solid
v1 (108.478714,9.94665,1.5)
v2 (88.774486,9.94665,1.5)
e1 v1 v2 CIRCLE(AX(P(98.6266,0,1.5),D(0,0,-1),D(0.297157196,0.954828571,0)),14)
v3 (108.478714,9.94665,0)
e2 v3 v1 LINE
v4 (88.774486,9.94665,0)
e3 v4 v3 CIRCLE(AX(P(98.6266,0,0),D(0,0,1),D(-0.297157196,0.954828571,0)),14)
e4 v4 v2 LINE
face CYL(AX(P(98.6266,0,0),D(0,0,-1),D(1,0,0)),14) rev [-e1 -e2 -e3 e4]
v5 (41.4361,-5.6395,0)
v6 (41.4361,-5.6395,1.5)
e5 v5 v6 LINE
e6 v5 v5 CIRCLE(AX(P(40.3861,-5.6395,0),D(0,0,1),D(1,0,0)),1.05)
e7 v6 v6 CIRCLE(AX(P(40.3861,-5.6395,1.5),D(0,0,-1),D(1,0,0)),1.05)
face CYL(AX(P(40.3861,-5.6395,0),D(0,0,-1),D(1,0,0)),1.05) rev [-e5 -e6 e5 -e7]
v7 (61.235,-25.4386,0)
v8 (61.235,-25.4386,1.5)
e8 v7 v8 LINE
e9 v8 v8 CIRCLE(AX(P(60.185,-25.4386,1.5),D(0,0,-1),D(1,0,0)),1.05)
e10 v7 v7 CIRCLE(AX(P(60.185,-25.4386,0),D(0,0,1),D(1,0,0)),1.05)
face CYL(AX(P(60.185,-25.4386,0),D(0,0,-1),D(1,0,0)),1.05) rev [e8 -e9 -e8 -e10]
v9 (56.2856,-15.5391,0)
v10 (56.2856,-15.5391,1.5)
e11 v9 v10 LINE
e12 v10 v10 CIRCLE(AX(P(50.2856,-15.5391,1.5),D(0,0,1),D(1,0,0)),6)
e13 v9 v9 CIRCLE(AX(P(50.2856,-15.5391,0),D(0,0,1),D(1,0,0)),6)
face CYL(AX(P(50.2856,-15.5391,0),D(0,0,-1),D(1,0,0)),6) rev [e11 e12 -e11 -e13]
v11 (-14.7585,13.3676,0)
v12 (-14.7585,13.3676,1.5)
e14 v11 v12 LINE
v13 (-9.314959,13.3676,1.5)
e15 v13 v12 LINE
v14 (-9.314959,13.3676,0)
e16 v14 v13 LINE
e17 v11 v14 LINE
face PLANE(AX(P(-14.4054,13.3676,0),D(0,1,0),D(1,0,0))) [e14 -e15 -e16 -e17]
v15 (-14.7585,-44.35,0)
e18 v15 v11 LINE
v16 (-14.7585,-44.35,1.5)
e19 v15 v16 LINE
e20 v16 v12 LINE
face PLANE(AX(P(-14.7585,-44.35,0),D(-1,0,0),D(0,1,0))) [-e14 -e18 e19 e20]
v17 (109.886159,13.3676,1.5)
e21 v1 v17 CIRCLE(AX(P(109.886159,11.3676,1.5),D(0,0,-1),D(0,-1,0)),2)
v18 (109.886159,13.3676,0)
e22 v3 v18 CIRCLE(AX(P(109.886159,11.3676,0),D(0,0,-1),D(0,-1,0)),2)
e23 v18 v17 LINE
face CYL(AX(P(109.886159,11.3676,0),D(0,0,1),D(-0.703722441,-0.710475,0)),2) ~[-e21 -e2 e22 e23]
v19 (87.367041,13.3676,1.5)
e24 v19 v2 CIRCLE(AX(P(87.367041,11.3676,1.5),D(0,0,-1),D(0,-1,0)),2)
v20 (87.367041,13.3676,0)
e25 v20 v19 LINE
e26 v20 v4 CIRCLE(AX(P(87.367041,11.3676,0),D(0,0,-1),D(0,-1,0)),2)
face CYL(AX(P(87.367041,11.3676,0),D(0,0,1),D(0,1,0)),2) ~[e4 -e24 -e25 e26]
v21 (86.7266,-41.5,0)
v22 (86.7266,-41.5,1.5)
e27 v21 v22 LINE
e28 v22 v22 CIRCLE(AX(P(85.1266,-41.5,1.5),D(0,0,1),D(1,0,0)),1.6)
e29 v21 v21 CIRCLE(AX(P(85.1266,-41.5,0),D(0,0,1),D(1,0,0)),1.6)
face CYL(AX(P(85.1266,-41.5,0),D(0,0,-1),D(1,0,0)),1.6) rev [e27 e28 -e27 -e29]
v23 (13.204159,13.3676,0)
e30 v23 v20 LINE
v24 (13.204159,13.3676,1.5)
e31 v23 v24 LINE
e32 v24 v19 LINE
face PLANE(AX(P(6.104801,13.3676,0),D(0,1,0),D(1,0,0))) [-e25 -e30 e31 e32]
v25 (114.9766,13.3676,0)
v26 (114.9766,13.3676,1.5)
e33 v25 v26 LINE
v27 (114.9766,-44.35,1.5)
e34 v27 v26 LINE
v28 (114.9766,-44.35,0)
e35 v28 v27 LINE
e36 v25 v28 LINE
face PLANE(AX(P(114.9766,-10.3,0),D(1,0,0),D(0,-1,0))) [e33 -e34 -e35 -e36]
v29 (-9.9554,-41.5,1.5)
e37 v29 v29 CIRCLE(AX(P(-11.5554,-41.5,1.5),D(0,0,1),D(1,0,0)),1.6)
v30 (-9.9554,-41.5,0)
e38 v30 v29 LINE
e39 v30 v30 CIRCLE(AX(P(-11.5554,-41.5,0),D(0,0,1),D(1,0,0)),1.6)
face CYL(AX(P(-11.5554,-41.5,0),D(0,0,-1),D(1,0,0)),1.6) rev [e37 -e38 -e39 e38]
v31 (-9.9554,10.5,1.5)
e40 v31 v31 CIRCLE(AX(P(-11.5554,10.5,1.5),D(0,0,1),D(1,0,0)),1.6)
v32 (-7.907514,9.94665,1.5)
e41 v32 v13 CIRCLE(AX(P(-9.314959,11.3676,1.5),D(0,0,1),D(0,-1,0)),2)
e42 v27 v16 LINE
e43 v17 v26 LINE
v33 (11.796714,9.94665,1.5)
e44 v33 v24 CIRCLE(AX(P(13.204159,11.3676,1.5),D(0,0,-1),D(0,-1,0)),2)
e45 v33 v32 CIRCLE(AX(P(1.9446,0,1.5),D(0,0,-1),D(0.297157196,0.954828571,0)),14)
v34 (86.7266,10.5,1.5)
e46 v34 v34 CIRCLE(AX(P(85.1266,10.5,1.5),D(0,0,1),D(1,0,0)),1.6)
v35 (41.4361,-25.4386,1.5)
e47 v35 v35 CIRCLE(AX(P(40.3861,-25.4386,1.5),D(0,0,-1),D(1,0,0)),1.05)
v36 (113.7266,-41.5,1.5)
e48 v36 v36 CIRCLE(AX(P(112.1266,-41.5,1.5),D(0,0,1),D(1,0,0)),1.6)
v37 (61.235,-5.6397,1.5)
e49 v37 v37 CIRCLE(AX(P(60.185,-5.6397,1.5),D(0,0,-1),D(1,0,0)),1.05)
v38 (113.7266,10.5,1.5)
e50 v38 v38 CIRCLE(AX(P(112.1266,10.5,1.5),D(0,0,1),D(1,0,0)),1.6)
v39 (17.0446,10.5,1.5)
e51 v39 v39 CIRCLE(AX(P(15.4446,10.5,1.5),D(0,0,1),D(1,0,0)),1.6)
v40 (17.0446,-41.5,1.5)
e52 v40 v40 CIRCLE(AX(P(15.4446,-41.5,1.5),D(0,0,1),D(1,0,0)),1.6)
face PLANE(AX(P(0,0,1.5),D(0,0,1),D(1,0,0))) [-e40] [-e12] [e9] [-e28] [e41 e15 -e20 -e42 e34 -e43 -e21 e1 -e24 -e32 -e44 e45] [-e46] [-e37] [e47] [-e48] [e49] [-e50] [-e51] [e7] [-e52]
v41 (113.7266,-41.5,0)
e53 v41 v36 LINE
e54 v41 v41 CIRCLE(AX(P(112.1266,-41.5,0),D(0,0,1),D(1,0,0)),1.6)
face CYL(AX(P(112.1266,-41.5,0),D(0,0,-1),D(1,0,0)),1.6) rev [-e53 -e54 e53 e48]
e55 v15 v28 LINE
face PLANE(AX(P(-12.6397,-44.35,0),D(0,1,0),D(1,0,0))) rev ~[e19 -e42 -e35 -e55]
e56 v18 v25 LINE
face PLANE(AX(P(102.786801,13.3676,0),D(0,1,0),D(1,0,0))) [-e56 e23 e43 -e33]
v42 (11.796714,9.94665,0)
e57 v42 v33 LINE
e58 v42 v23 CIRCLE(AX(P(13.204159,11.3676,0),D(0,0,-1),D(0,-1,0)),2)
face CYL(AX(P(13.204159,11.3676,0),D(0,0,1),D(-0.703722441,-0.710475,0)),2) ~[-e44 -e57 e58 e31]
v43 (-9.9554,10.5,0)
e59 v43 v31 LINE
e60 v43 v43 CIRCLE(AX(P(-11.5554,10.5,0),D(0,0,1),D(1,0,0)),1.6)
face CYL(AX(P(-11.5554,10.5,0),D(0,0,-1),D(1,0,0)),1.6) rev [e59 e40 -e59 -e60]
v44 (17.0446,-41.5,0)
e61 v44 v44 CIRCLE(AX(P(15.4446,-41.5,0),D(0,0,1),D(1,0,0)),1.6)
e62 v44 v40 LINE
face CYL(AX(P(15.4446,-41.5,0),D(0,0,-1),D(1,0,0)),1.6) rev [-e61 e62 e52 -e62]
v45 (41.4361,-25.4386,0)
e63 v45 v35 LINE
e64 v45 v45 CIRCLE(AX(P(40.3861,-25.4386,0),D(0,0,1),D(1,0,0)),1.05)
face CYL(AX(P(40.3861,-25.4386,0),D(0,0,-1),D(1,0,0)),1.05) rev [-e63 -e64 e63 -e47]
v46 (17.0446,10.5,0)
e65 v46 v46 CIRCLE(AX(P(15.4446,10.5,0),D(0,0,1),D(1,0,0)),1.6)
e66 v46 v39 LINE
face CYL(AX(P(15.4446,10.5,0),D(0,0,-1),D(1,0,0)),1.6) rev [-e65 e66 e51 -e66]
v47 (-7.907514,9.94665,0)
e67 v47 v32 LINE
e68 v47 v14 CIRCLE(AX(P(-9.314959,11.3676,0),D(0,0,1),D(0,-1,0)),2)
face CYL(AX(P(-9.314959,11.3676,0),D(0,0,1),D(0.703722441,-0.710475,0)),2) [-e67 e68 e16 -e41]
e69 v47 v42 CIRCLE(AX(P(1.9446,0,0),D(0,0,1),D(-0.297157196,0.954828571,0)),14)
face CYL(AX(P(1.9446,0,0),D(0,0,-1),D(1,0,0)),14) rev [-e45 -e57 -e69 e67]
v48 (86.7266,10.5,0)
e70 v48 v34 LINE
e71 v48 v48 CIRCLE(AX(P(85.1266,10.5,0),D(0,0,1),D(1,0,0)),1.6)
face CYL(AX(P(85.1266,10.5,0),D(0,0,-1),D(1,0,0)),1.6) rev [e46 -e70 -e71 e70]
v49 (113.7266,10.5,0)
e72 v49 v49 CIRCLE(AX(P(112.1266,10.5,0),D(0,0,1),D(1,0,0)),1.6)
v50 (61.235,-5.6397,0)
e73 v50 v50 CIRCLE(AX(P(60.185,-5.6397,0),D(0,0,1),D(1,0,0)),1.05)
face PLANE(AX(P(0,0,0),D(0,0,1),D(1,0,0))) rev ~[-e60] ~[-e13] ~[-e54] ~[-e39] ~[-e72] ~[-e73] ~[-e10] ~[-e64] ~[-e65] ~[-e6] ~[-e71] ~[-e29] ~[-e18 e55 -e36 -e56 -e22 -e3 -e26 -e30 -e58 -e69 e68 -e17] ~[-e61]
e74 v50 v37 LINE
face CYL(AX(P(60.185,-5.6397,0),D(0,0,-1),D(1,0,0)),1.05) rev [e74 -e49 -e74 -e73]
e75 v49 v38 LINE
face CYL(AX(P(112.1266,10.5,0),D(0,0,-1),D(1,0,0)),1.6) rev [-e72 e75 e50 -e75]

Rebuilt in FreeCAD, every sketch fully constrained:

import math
import FreeCAD as App
import Part
import Sketcher
from FreeCAD import Vector


def edges_at(feature, points):
    """Names of the edges that pass closest to the given points."""
    edges = feature.Shape.Edges
    near = lambda p: min(range(len(edges)), key=lambda i: edges[i].distToShape(Part.Vertex(*p))[0])
    return sorted({f"Edge{near(p) + 1}" for p in points})

doc = App.newDocument("Part")
body = doc.addObject("PartDesign::Body", "Body")

sketch1 = body.newObject("Sketcher::SketchObject", "Sketch")
sketch1.AttachmentSupport = (doc.getObject("XY_Plane"), [""])
sketch1.MapMode = "FlatFace"
sketch1.addGeometry(Part.LineSegment(Vector(115, -44.4, 0), Vector(115, 13.4, 0)), False)
sketch1.addGeometry(Part.LineSegment(Vector(115, 13.4, 0), Vector(102.8, 13.4, 0)), False)
sketch1.addGeometry(Part.ArcOfCircle(Part.Circle(Vector(98.6, 0, 0), Vector(0, 0, 1), 14), math.radians(107), math.radians(433)), False)
sketch1.addGeometry(Part.LineSegment(Vector(94.5, 13.4, 0), Vector(6.1, 13.4, 0)), False)
sketch1.addGeometry(Part.ArcOfCircle(Part.Circle(Vector(1.9, 0, 0), Vector(0, 0, 1), 14), math.radians(107), math.radians(433)), False)
sketch1.addGeometry(Part.LineSegment(Vector(-2.2, 13.4, 0), Vector(-14.8, 13.4, 0)), False)
sketch1.addGeometry(Part.LineSegment(Vector(-14.8, 13.4, 0), Vector(-14.8, -44.4, 0)), False)
sketch1.addGeometry(Part.LineSegment(Vector(-14.8, -44.4, 0), Vector(115, -44.4, 0)), False)
sketch1.addGeometry(Part.Circle(Vector(60.2, -25.4, 0), Vector(0, 0, 1), 1.1), False)
sketch1.addGeometry(Part.Circle(Vector(60.2, -5.6, 0), Vector(0, 0, 1), 1.1), False)
sketch1.addGeometry(Part.Circle(Vector(40.4, -5.6, 0), Vector(0, 0, 1), 1.1), False)
sketch1.addGeometry(Part.Circle(Vector(40.4, -25.4, 0), Vector(0, 0, 1), 1.1), False)
sketch1.addGeometry(Part.Circle(Vector(-11.6, -41.5, 0), Vector(0, 0, 1), 1.6), False)
sketch1.addGeometry(Part.Circle(Vector(15.4, -41.5, 0), Vector(0, 0, 1), 1.6), False)
sketch1.addGeometry(Part.Circle(Vector(-11.6, 10.5, 0), Vector(0, 0, 1), 1.6), False)
sketch1.addGeometry(Part.Circle(Vector(15.4, 10.5, 0), Vector(0, 0, 1), 1.6), False)
sketch1.addGeometry(Part.Circle(Vector(50.3, -15.5, 0), Vector(0, 0, 1), 6), False)
sketch1.addGeometry(Part.Circle(Vector(85.1, 10.5, 0), Vector(0, 0, 1), 1.6), False)
sketch1.addGeometry(Part.Circle(Vector(112.1, 10.5, 0), Vector(0, 0, 1), 1.6), False)
sketch1.addGeometry(Part.Circle(Vector(85.1, -41.5, 0), Vector(0, 0, 1), 1.6), False)
sketch1.addGeometry(Part.Circle(Vector(112.1, -41.5, 0), Vector(0, 0, 1), 1.6), False)
sketch1.addConstraint(Sketcher.Constraint("Coincident", 0, 2, 1, 1))
sketch1.addConstraint(Sketcher.Constraint("Coincident", 1, 2, 2, 2))
sketch1.addConstraint(Sketcher.Constraint("Coincident", 2, 1, 3, 1))
sketch1.addConstraint(Sketcher.Constraint("Coincident", 3, 2, 4, 2))
sketch1.addConstraint(Sketcher.Constraint("Coincident", 4, 1, 5, 1))
sketch1.addConstraint(Sketcher.Constraint("Coincident", 5, 2, 6, 1))
sketch1.addConstraint(Sketcher.Constraint("Coincident", 6, 2, 7, 1))
sketch1.addConstraint(Sketcher.Constraint("Coincident", 7, 2, 0, 1))
sketch1.addConstraint(Sketcher.Constraint("Vertical", 0))
sketch1.addConstraint(Sketcher.Constraint("Horizontal", 1))
sketch1.addConstraint(Sketcher.Constraint("Horizontal", 3))
sketch1.addConstraint(Sketcher.Constraint("Horizontal", 5))
sketch1.addConstraint(Sketcher.Constraint("Vertical", 6))
sketch1.addConstraint(Sketcher.Constraint("Horizontal", 7))
sketch1.addConstraint(Sketcher.Constraint("Equal", 2, 4))
sketch1.addConstraint(Sketcher.Constraint("Equal", 8, 9))
sketch1.addConstraint(Sketcher.Constraint("Equal", 9, 10))
sketch1.addConstraint(Sketcher.Constraint("Equal", 10, 11))
sketch1.addConstraint(Sketcher.Constraint("Equal", 12, 13))
sketch1.addConstraint(Sketcher.Constraint("Equal", 13, 14))
sketch1.addConstraint(Sketcher.Constraint("Equal", 14, 15))
sketch1.addConstraint(Sketcher.Constraint("Equal", 15, 17))
sketch1.addConstraint(Sketcher.Constraint("Equal", 17, 18))
sketch1.addConstraint(Sketcher.Constraint("Equal", 18, 19))
sketch1.addConstraint(Sketcher.Constraint("Equal", 19, 20))
sketch1.addConstraint(Sketcher.Constraint("PointOnObject", 2, 3, -1))
sketch1.addConstraint(Sketcher.Constraint("PointOnObject", 4, 3, -1))
sketch1.addConstraint(Sketcher.Constraint("Horizontal", 8, 3, 11, 3))
sketch1.addConstraint(Sketcher.Constraint("Horizontal", 12, 3, 13, 3))
sketch1.addConstraint(Sketcher.Constraint("Horizontal", 14, 3, 15, 3))
sketch1.addConstraint(Sketcher.Constraint("Horizontal", 15, 3, 17, 3))
sketch1.addConstraint(Sketcher.Constraint("Horizontal", 17, 3, 18, 3))
sketch1.addConstraint(Sketcher.Constraint("Horizontal", 13, 3, 19, 3))
sketch1.addConstraint(Sketcher.Constraint("Horizontal", 19, 3, 20, 3))
sketch1.addConstraint(Sketcher.Constraint("Horizontal", 1, 2, 2, 1))
sketch1.addConstraint(Sketcher.Constraint("Horizontal", 3, 2, 4, 1))
sketch1.addConstraint(Sketcher.Constraint("Vertical", 8, 3, 9, 3))
sketch1.addConstraint(Sketcher.Constraint("Vertical", 10, 3, 11, 3))
sketch1.addConstraint(Sketcher.Constraint("Vertical", 12, 3, 14, 3))
sketch1.addConstraint(Sketcher.Constraint("Vertical", 13, 3, 15, 3))
sketch1.addConstraint(Sketcher.Constraint("Vertical", 17, 3, 19, 3))
sketch1.addConstraint(Sketcher.Constraint("Vertical", 18, 3, 20, 3))
sketch1.addConstraint(Sketcher.Constraint("Diameter", 16, 12.0))
sketch1.addConstraint(Sketcher.Constraint("Radius", 2, 14.0))
sketch1.addConstraint(Sketcher.Constraint("Diameter", 8, 2.1))
sketch1.addConstraint(Sketcher.Constraint("Diameter", 12, 3.2))
sketch1.addConstraint(Sketcher.Constraint("DistanceY", 8, 3, 9, 3, 19.799))
sketch1.addConstraint(Sketcher.Constraint("DistanceX", 10, 3, 9, 3, 19.799))
sketch1.addConstraint(Sketcher.Constraint("DistanceY", 8, 3, 10, 3, 19.799))
sketch1.addConstraint(Sketcher.Constraint("DistanceX", 12, 3, 13, 3, 27.0))
sketch1.addConstraint(Sketcher.Constraint("DistanceY", 12, 3, 14, 3, 52.0))
sketch1.addConstraint(Sketcher.Constraint("DistanceX", 17, 3, 18, 3, 27.0))
sketch1.addConstraint(Sketcher.Constraint("DistanceY", 12, 3, -1, 1, 41.5))
sketch1.addConstraint(Sketcher.Constraint("DistanceX", 12, 3, 4, 3, 13.5))
sketch1.addConstraint(Sketcher.Constraint("DistanceX", 17, 3, 2, 3, 13.5))
sketch1.addConstraint(Sketcher.Constraint("DistanceX", 5, 2, 5, 1, 12.543))
sketch1.addConstraint(Sketcher.Constraint("DistanceX", 7, 1, 7, 2, 129.735))
sketch1.addConstraint(Sketcher.Constraint("DistanceY", 6, 2, -1, 1, 44.35))
sketch1.addConstraint(Sketcher.Constraint("DistanceX", 18, 3, 0, 2, 2.85))
sketch1.addConstraint(Sketcher.Constraint("DistanceX", 1, 2, 1, 1, 12.1898))
sketch1.addConstraint(Sketcher.Constraint("DistanceX", -1, 1, 8, 3, 60.185))
sketch1.addConstraint(Sketcher.Constraint("DistanceY", 16, 3, -1, 1, 15.539))
sketch1.addConstraint(Sketcher.Constraint("DistanceX", 13, 3, 16, 3, 34.841))
sketch1.addConstraint(Sketcher.Constraint("DistanceY", 10, 3, 3, 2, 19.007))
sketch1.addConstraint(Sketcher.Constraint("DistanceX", -1, 1, 2, 3, 98.6266))
pad1 = body.newObject("PartDesign::Pad", "Pad")
pad1.Profile = sketch1
pad1.Length = 1.5
doc.recompute()

fillet = body.newObject("PartDesign::Fillet", "Fillet")
fillet.Base = (pad1, edges_at(pad1, [
    (102.787, 13.368, 0.75),
    (94.466, 13.368, 0.75),
    (6.105, 13.368, 0.75),
    (-2.216, 13.368, 0.75),
]))
fillet.Radius = 2

doc.recompute()
